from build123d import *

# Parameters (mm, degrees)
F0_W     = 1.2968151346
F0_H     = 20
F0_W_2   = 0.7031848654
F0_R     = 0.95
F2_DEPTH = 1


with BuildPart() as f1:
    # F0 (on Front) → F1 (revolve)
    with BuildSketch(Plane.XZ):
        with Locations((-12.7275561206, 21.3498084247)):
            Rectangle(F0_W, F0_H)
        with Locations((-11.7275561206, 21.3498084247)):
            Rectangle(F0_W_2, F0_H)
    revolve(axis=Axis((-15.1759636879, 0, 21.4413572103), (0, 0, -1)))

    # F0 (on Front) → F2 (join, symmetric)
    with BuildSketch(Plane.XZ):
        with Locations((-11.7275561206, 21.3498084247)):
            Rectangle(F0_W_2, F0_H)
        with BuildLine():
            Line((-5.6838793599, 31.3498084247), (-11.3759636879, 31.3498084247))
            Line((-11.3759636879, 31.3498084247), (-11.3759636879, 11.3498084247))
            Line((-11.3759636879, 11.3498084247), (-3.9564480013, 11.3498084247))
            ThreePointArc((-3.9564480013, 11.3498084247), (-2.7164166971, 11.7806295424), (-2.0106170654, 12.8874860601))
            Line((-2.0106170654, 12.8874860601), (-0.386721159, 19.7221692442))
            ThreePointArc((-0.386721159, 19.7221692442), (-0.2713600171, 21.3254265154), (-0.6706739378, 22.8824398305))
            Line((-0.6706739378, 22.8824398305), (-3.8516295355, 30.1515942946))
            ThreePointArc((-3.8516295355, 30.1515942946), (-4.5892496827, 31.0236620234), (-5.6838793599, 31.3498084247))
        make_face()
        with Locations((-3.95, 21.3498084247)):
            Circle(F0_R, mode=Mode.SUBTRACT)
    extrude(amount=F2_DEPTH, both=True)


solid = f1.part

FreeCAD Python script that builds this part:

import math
import FreeCAD as App
import Part
import Sketcher

V = App.Vector

doc = App.newDocument("Part")
body = doc.addObject("PartDesign::Body", "Body")

# Sketch on XZ plane
sketch1 = body.newObject("Sketcher::SketchObject", "Sketch")
sketch1.AttachmentSupport = (doc.getObject("XZ_Plane"), [""])
sketch1.MapMode = "FlatFace"
sketch1.addGeometry([
    Part.LineSegment(V(-13.4, 31.3, 0), V(-13.4, 11.3, 0)),
    Part.LineSegment(V(-13.4, 11.3, 0), V(-11.4, 11.3, 0)),
    Part.LineSegment(V(-11.4, 11.3, 0), V(-11.4, 31.3, 0)),
    Part.LineSegment(V(-11.4, 31.3, 0), V(-13.4, 31.3, 0)),
], False)
sketch1.addGeometry(Part.LineSegment(V(-15.2, 31.3, 0), V(-15.2, 11.3, 0)), True)  # axis
sketch1.addConstraint([
    Sketcher.Constraint("Coincident", 0, 2, 1, 1),
    Sketcher.Constraint("Coincident", 1, 2, 2, 1),
    Sketcher.Constraint("Coincident", 2, 2, 3, 1),
    Sketcher.Constraint("Coincident", 3, 2, 0, 1),
    Sketcher.Constraint("Vertical", 0),
    Sketcher.Constraint("Horizontal", 1),
    Sketcher.Constraint("Vertical", 2),
    Sketcher.Constraint("Horizontal", 3),
    Sketcher.Constraint("Vertical", 4),
    Sketcher.Constraint("Horizontal", 3, 2, 4, 1),
    Sketcher.Constraint("Horizontal", 1, 2, 4, 2),
    Sketcher.Constraint("DistanceX", 1, 1, 1, 2, 2.0),
    Sketcher.Constraint("DistanceY", 0, 2, 0, 1, 20.0),
    Sketcher.Constraint("DistanceX", 4, 1, 3, 2, 1.8),
    Sketcher.Constraint("DistanceY", -1, 1, 0, 2, 11.349808),
    Sketcher.Constraint("DistanceX", 0, 2, -1, 1, 13.375964),
])
revolution = body.newObject("PartDesign::Revolution", "Revolution")
revolution.Profile = sketch1
revolution.ReferenceAxis = (sketch1, ["Axis0"])
revolution.Angle = 360

# Sketch on XZ plane
sketch2 = body.newObject("Sketcher::SketchObject", "Sketch001")
sketch2.AttachmentSupport = (doc.getObject("XZ_Plane"), [""])
sketch2.MapMode = "FlatFace"
sketch2.addGeometry([
    Part.LineSegment(V(-12.1, 31.3, 0), V(-12.1, 11.3, 0)),  # 0
    Part.LineSegment(V(-12.1, 11.3, 0), V(-4, 11.3, 0)),  # 1
    Part.ArcOfCircle(Part.Circle(V(-4, 13.3, 0), V(0, 0, 1), 2), math.radians(-90), math.radians(-13)),  # 2
    Part.LineSegment(V(-2, 12.9, 0), V(-0.4, 19.7, 0)),  # 3
    Part.ArcOfCircle(Part.Circle(V(-5.3, 20.9, 0), V(0, 0, 1), 5), math.radians(-13), math.radians(24)),  # 4
    Part.LineSegment(V(-0.7, 22.9, 0), V(-3.9, 30.2, 0)),  # 5
    Part.ArcOfCircle(Part.Circle(V(-5.7, 29.3, 0), V(0, 0, 1), 2), math.radians(24), math.radians(90)),  # 6
    Part.LineSegment(V(-5.7, 31.3, 0), V(-12.1, 31.3, 0)),  # 7
    Part.Circle(V(-4, 21.3, 0), V(0, 0, 1), 0.9),  # 8
], False)
sketch2.addConstraint([
    Sketcher.Constraint("Coincident", 0, 2, 1, 1),
    Sketcher.Constraint("Tangent", 1, 2, 2, 1),
    Sketcher.Constraint("Tangent", 2, 2, 3, 1),
    Sketcher.Constraint("Tangent", 3, 2, 4, 1),
    Sketcher.Constraint("Tangent", 4, 2, 5, 1),
    Sketcher.Constraint("Tangent", 5, 2, 6, 1),
    Sketcher.Constraint("Tangent", 6, 2, 7, 1),
    Sketcher.Constraint("Coincident", 7, 2, 0, 1),
    Sketcher.Constraint("Vertical", 0),
    Sketcher.Constraint("Horizontal", 1),
    Sketcher.Constraint("Horizontal", 7),
    Sketcher.Constraint("Equal", 2, 6),
    Sketcher.Constraint("Radius", 2, 2.0),
    Sketcher.Constraint("Radius", 4, 5.0),
    Sketcher.Constraint("Diameter", 8, 1.9),
    Sketcher.Constraint("DistanceY", 0, 2, 0, 1, 20.0),
    Sketcher.Constraint("DistanceY", 2, 3, 8, 3, 8.0),
    Sketcher.Constraint("DistanceX", 8, 3, -1, 1, 3.95),
    Sketcher.Constraint("DistanceX", 1, 1, 1, 2, 8.122701),
    Sketcher.Constraint("DistanceX", 7, 2, 7, 1, 6.395269),
    Sketcher.Constraint("DistanceX", 4, 3, -1, 1, 5.251298),
    Sketcher.Constraint("Distance", 3, 7.024951),
    Sketcher.Constraint("DistanceX", 2, 3, -1, 1, 3.956448),
    Sketcher.Constraint("DistanceY", -1, 1, 2, 3, 13.349808),
])
pad1 = body.newObject("PartDesign::Pad", "Pad")
pad1.Profile = sketch2
pad1.Length = 2
pad1.Midplane = True

doc.recompute()
